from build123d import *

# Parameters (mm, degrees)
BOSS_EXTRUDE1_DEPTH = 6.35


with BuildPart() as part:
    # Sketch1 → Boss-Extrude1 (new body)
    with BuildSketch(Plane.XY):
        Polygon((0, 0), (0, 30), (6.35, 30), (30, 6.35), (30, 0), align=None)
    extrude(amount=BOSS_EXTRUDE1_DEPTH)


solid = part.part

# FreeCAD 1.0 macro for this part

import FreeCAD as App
import Part
import Sketcher

doc = App.newDocument("Part")
body = doc.addObject("PartDesign::Body", "Body")

sketch1 = body.newObject("Sketcher::SketchObject", "Sketch")
sketch1.AttachmentSupport = (doc.getObject("XY_Plane"), [""])
sketch1.MapMode = "FlatFace"
sketch1.addGeometry(Part.LineSegment(App.Vector(0, 30, 0), App.Vector(0, 0, 0)), False)
sketch1.addGeometry(Part.LineSegment(App.Vector(0, 0, 0), App.Vector(30, 0, 0)), False)
sketch1.addGeometry(Part.LineSegment(App.Vector(30, 0, 0), App.Vector(30, 6, 0)), False)
sketch1.addGeometry(Part.LineSegment(App.Vector(30, 6, 0), App.Vector(6, 30, 0)), False)
sketch1.addGeometry(Part.LineSegment(App.Vector(6, 30, 0), App.Vector(0, 30, 0)), False)
sketch1.addConstraint(Sketcher.Constraint("Coincident", 0, 2, 1, 1))
sketch1.addConstraint(Sketcher.Constraint("Coincident", 1, 2, 2, 1))
sketch1.addConstraint(Sketcher.Constraint("Coincident", 2, 2, 3, 1))
sketch1.addConstraint(Sketcher.Constraint("Coincident", 3, 2, 4, 1))
sketch1.addConstraint(Sketcher.Constraint("Coincident", 4, 2, 0, 1))
sketch1.addConstraint(Sketcher.Constraint("Vertical", 0))
sketch1.addConstraint(Sketcher.Constraint("Horizontal", 1))
sketch1.addConstraint(Sketcher.Constraint("Vertical", 2))
sketch1.addConstraint(Sketcher.Constraint("Horizontal", 4))
sketch1.addConstraint(Sketcher.Constraint("Coincident", 0, 2, -1, 1))
sketch1.addConstraint(Sketcher.Constraint("Equal", 1, 0))
sketch1.addConstraint(Sketcher.Constraint("Equal", 4, 2))
sketch1.addConstraint(Sketcher.Constraint("DistanceX", 1, 1, 1, 2, 30.0))
sketch1.addConstraint(Sketcher.Constraint("DistanceX", 4, 2, 4, 1, 6.35))
pad1 = body.newObject("PartDesign::Pad", "Pad")
pad1.Profile = sketch1
pad1.Length = 6.35

doc.recompute()
